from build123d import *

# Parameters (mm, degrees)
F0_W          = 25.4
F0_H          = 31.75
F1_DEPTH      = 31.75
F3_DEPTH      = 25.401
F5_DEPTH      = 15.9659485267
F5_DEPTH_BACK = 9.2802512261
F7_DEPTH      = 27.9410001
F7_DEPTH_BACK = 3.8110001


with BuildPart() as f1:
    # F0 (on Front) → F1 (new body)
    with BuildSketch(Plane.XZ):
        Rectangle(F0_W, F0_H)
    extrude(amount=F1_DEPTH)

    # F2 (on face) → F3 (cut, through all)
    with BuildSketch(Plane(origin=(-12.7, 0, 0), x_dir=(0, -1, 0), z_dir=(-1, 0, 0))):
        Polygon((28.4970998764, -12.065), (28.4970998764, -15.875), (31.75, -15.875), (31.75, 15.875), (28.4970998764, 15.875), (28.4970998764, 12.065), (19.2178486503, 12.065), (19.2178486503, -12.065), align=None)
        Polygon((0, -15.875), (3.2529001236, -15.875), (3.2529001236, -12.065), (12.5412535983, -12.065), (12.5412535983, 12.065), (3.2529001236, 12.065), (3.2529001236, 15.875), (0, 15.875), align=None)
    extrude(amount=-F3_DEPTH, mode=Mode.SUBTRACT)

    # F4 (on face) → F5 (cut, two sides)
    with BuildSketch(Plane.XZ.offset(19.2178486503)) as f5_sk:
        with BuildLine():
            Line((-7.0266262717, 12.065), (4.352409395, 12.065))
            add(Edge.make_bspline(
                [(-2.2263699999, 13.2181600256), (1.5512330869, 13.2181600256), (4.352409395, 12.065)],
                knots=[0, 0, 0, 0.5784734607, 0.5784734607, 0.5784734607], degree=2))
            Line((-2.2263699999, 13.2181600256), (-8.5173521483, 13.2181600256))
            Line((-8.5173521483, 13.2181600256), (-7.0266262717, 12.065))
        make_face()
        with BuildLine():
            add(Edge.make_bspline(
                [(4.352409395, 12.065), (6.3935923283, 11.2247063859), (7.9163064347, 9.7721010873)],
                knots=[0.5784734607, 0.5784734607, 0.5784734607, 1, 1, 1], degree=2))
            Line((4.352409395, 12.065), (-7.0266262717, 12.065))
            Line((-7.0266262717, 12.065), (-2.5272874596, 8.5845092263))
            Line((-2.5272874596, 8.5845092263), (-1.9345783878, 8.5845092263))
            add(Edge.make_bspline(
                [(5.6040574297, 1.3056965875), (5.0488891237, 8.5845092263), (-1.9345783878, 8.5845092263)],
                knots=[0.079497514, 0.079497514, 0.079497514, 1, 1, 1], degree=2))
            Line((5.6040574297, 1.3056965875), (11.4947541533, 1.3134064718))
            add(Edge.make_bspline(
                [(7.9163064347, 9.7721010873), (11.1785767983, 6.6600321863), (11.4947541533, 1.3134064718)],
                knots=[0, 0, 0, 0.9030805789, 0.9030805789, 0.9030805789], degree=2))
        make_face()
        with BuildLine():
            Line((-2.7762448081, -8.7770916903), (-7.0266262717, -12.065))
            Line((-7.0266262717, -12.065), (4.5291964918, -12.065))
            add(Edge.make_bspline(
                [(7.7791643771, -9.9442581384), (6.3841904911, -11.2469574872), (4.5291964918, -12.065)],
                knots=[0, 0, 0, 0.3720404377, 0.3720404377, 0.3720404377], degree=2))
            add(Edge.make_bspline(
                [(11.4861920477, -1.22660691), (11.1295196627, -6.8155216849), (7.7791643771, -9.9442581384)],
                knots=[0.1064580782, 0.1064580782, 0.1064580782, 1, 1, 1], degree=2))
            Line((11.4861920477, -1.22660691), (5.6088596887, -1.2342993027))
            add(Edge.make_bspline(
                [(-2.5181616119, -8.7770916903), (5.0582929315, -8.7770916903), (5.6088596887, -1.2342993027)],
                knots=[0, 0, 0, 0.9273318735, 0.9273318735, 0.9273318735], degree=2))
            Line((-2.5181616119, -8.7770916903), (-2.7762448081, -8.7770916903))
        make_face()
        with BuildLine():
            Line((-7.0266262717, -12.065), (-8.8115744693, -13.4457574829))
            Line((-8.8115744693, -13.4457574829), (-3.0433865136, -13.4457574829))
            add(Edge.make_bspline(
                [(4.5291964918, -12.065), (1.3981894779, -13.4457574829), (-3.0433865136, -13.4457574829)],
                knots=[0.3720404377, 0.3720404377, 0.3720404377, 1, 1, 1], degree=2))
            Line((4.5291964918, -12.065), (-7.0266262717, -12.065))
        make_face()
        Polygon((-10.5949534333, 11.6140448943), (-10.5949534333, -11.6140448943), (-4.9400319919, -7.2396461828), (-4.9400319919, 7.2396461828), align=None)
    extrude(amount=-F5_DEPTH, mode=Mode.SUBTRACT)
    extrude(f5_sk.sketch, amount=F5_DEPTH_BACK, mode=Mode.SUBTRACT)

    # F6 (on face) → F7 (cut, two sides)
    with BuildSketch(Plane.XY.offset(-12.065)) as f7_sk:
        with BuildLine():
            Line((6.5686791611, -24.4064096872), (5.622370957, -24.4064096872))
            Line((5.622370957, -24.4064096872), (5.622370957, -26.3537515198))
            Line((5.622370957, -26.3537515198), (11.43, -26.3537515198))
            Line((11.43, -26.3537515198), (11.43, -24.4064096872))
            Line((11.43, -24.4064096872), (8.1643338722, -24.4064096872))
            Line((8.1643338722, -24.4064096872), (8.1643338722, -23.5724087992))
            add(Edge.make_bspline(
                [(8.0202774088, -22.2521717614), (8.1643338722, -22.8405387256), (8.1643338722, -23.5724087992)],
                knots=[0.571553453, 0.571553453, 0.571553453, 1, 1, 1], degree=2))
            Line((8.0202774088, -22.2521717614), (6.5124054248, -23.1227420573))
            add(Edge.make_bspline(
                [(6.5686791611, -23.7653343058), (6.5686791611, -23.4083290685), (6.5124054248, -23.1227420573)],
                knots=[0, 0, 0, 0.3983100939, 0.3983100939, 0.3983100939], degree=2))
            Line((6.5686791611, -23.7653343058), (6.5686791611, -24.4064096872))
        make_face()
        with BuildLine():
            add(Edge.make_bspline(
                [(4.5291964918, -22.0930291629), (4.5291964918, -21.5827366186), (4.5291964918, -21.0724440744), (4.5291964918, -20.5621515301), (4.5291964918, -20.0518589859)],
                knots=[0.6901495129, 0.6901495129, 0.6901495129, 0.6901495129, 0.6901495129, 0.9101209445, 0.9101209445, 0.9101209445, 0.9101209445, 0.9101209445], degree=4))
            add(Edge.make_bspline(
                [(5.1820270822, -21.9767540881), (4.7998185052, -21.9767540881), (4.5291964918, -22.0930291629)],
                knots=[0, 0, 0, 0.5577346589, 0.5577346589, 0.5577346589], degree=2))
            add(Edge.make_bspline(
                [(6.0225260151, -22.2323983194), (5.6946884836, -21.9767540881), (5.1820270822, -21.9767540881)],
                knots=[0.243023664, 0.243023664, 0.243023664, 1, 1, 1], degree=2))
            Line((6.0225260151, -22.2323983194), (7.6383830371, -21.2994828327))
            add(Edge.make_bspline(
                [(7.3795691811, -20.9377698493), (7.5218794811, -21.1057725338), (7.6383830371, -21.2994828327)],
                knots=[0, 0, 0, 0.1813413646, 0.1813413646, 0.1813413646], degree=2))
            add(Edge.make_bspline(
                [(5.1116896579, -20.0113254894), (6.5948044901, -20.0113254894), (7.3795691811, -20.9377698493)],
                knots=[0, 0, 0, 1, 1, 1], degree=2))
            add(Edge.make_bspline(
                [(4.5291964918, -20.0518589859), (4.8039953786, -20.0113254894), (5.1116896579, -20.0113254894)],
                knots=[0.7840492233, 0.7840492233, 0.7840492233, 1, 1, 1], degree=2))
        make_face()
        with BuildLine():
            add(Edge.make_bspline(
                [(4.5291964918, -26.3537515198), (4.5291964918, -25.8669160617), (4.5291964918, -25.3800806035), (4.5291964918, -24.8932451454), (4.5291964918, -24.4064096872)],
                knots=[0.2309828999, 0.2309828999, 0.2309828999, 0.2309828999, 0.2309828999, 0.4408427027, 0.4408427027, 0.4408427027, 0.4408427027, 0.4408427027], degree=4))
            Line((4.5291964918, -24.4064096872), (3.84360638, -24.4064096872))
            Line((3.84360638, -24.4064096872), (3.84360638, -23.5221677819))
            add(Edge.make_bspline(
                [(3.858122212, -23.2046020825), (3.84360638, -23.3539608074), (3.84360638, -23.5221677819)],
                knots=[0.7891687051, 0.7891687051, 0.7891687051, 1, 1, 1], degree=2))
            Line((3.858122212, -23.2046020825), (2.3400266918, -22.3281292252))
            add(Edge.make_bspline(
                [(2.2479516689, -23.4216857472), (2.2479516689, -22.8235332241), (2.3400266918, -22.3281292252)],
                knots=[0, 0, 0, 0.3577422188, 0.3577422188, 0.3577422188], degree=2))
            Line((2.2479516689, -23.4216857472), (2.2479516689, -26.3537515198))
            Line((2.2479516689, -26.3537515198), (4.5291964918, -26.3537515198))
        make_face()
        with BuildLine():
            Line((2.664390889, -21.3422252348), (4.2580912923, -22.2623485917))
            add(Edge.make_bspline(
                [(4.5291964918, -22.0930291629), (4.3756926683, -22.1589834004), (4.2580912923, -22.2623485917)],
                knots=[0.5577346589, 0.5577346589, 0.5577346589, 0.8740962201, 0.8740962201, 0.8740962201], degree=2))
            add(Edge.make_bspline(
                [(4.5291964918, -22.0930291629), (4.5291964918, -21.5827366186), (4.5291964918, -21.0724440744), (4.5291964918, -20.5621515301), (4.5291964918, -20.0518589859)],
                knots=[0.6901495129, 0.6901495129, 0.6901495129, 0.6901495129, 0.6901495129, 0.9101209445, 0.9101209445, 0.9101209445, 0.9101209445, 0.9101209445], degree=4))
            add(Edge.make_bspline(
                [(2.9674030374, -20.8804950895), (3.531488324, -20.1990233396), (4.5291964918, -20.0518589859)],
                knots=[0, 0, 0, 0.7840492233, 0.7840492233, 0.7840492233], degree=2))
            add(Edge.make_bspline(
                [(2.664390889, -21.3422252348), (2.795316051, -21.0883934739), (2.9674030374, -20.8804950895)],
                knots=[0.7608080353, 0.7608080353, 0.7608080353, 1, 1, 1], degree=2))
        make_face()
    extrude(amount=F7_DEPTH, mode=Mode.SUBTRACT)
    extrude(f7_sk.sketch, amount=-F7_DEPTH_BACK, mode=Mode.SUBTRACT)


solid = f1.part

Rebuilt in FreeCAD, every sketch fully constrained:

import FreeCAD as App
import Part
import Sketcher

V = App.Vector
Q = App.Units.Quantity


def add_polygon(sketch, points):
    """Adds a closed chain of lines whose ends are joined by coincident constraints."""
    first, n = sketch.GeometryCount, len(points)
    for a, b in zip(points, points[1:] + points[:1]):
        sketch.addGeometry(Part.LineSegment(App.Vector(*a, 0), App.Vector(*b, 0)), False)
    for i in range(n):
        sketch.addConstraint(Sketcher.Constraint("Coincident", first + i, 2, first + (i + 1) % n, 1))

doc = App.newDocument("Part")
body = doc.addObject("PartDesign::Body", "Body")

# Sketch on XZ plane
sketch1 = body.newObject("Sketcher::SketchObject", "Sketch")
sketch1.AttachmentSupport = (doc.getObject("XZ_Plane"), [""])
sketch1.MapMode = "FlatFace"
add_polygon(sketch1, [(-13, 16), (-13, -16), (13, -16), (13, 16)])  # lines 0-3
sketch1.addConstraint([
    Sketcher.Constraint("Vertical", 0),
    Sketcher.Constraint("Horizontal", 1),
    Sketcher.Constraint("Vertical", 2),
    Sketcher.Constraint("Horizontal", 3),
    Sketcher.Constraint("Symmetric", 0, 2, 2, 2, -1, 1),
    Sketcher.Constraint("DistanceX", 1, 1, 1, 2, Q("1 in")),
    Sketcher.Constraint("DistanceY", 0, 2, 0, 1, Q("1.25 in")),
])
pad1 = body.newObject("PartDesign::Pad", "Pad")
pad1.Profile = sketch1
pad1.Length = Q("1.25 in")

# Sketch on YZ plane
sketch2 = body.newObject("Sketcher::SketchObject", "Sketch001")
sketch2.AttachmentSupport = (doc.getObject("YZ_Plane"), [""])
sketch2.MapMode = "FlatFace"
sketch2.AttachmentOffset = App.Placement(V(0, 0, -0.5 * 25.4), App.Rotation())
add_polygon(sketch2, [(-28.5, -12.1), (-28.5, -15.9), (-31.8, -15.9), (-31.8, 15.9), (-28.5, 15.9), (-28.5, 12.1), (-19.2, 12.1), (-19.2, -12.1)])  # lines 0-7
add_polygon(sketch2, [(0, -15.9), (-3.3, -15.9), (-3.3, -12.1), (-12.5, -12.1), (-12.5, 12.1), (-3.3, 12.1), (-3.3, 15.9), (0, 15.9)])  # lines 8-15
sketch2.addConstraint([
    Sketcher.Constraint("Vertical", 0),
    Sketcher.Constraint("Horizontal", 1),
    Sketcher.Constraint("Vertical", 2),
    Sketcher.Constraint("Horizontal", 3),
    Sketcher.Constraint("Vertical", 4),
    Sketcher.Constraint("Horizontal", 5),
    Sketcher.Constraint("Vertical", 6),
    Sketcher.Constraint("Horizontal", 7),
    Sketcher.Constraint("Horizontal", 8),
    Sketcher.Constraint("Vertical", 9),
    Sketcher.Constraint("Horizontal", 10),
    Sketcher.Constraint("Vertical", 11),
    Sketcher.Constraint("Horizontal", 12),
    Sketcher.Constraint("Vertical", 13),
    Sketcher.Constraint("Horizontal", 14),
    Sketcher.Constraint("Vertical", 15),
    Sketcher.Constraint("Symmetric", 14, 2, 15, 2, -1, 1),
    Sketcher.Constraint("Symmetric", 0, 2, 3, 2, -1),
    Sketcher.Constraint("Symmetric", 9, 2, 12, 2, -1),
    Sketcher.Constraint("Horizontal", 1, 2, 8, 2),
    Sketcher.Constraint("Horizontal", 7, 2, 9, 2),
    Sketcher.Constraint("Horizontal", 5, 2, 11, 2),
    Sketcher.Constraint("Equal", 3, 8),
    Sketcher.Constraint("DistanceY", 0, 2, 0, 1, Q("0.15 in")),
    Sketcher.Constraint("DistanceY", 2, 1, 2, 2, Q("1.25 in")),
    Sketcher.Constraint("DistanceX", 1, 2, -1, 1, Q("1.25 in")),
    Sketcher.Constraint("DistanceX", 1, 2, 1, 1, 3.2529),
    Sketcher.Constraint("DistanceX", 5, 1, 5, 2, 9.279251),
    Sketcher.Constraint("DistanceX", 10, 2, 10, 1, 9.288353),
])
pocket1 = body.newObject("PartDesign::Pocket", "Pocket")
pocket1.Profile = sketch2
pocket1.Type = "ThroughAll"
pocket1.Reversed = True

# Sketch on XZ plane
sketch3 = body.newObject("Sketcher::SketchObject", "Sketch002")
sketch3.AttachmentSupport = (doc.getObject("XZ_Plane"), [""])
sketch3.MapMode = "FlatFace"
sketch3.AttachmentOffset = App.Placement(V(0, 0, 19.217849), App.Rotation())
sketch3.addGeometry(Part.BSplineCurve([V(-2.22637, 13.21816, 0), V(1.551233, 13.21816, 0), V(4.352409, 12.065, 0)], [3, 3], [0, 0.578473461], False, 2, [1, 1, 1], False), False)  # 0
sketch3.addGeometry(Part.LineSegment(V(-2.22637, 13.21816, 0), V(-8.517352, 13.21816, 0)), False)  # 1
sketch3.addGeometry(Part.LineSegment(V(-8.517352, 13.21816, 0), V(-7.026626, 12.065, 0)), False)  # 2
sketch3.addGeometry(Part.LineSegment(V(-7.026626, 12.065, 0), V(-2.527287, 8.584509, 0)), False)  # 3
sketch3.addGeometry(Part.LineSegment(V(-2.527287, 8.584509, 0), V(-1.934578, 8.584509, 0)), False)  # 4
sketch3.addGeometry(Part.BSplineCurve([V(5.604057, 1.305697, 0), V(5.048889, 8.584509, 0), V(-1.934578, 8.584509, 0)], [3, 3], [0.079497514, 1], False, 2, [1, 1, 1], False), False)  # 5
sketch3.addGeometry(Part.LineSegment(V(5.604057, 1.305697, 0), V(11.494754, 1.313406, 0)), False)  # 6
sketch3.addGeometry(Part.BSplineCurve([V(7.916306, 9.772101, 0), V(11.178577, 6.660032, 0), V(11.494754, 1.313406, 0)], [3, 3], [0, 0.903080579], False, 2, [1, 1, 1], False), False)  # 7
sketch3.addGeometry(Part.BSplineCurve([V(4.352409, 12.065, 0), V(6.393592, 11.224706, 0), V(7.916306, 9.772101, 0)], [3, 3], [0.578473461, 1], False, 2, [1, 1, 1], False), False)  # 8
sketch3.addGeometry(Part.LineSegment(V(-2.776245, -8.777092, 0), V(-7.026626, -12.065, 0)), False)  # 9
sketch3.addGeometry(Part.LineSegment(V(-7.026626, -12.065, 0), V(-8.811574, -13.445757, 0)), False)  # 10
sketch3.addGeometry(Part.LineSegment(V(-8.811574, -13.445757, 0), V(-3.043387, -13.445757, 0)), False)  # 11
sketch3.addGeometry(Part.BSplineCurve([V(4.529196, -12.065, 0), V(1.398189, -13.445757, 0), V(-3.043387, -13.445757, 0)], [3, 3], [0.372040438, 1], False, 2, [1, 1, 1], False), False)  # 12
sketch3.addGeometry(Part.BSplineCurve([V(7.779164, -9.944258, 0), V(6.38419, -11.246957, 0), V(4.529196, -12.065, 0)], [3, 3], [0, 0.372040438], False, 2, [1, 1, 1], False), False)  # 13
sketch3.addGeometry(Part.BSplineCurve([V(11.486192, -1.226607, 0), V(11.12952, -6.815522, 0), V(7.779164, -9.944258, 0)], [3, 3], [0.106458078, 1], False, 2, [1, 1, 1], False), False)  # 14
sketch3.addGeometry(Part.LineSegment(V(11.486192, -1.226607, 0), V(5.60886, -1.234299, 0)), False)  # 15
sketch3.addGeometry(Part.BSplineCurve([V(-2.518162, -8.777092, 0), V(5.058293, -8.777092, 0), V(5.60886, -1.234299, 0)], [3, 3], [0, 0.927331874], False, 2, [1, 1, 1], False), False)  # 16
sketch3.addGeometry(Part.LineSegment(V(-2.518162, -8.777092, 0), V(-2.776245, -8.777092, 0)), False)  # 17
add_polygon(sketch3, [(-10.594953, 11.614045), (-10.594953, -11.614045), (-4.940032, -7.239646), (-4.940032, 7.239646)])  # lines 18-21
sketch3.addConstraint([
    Sketcher.Constraint("Block", 0),
    Sketcher.Constraint("Block", 5),
    Sketcher.Constraint("Block", 7),
    Sketcher.Constraint("Block", 8),
    Sketcher.Constraint("Block", 12),
    Sketcher.Constraint("Block", 13),
    Sketcher.Constraint("Block", 14),
    Sketcher.Constraint("Block", 16),
    Sketcher.Constraint("Coincident", 0, 1, 1, 1),
    Sketcher.Constraint("Coincident", 1, 2, 2, 1),
    Sketcher.Constraint("Coincident", 2, 2, 3, 1),
    Sketcher.Constraint("Coincident", 3, 2, 4, 1),
    Sketcher.Constraint("Coincident", 4, 2, 5, 2),
    Sketcher.Constraint("Coincident", 5, 1, 6, 1),
    Sketcher.Constraint("Coincident", 6, 2, 7, 2),
    Sketcher.Constraint("Coincident", 9, 2, 10, 1),
    Sketcher.Constraint("Coincident", 10, 2, 11, 1),
    Sketcher.Constraint("Coincident", 11, 2, 12, 2),
    Sketcher.Constraint("Coincident", 14, 1, 15, 1),
    Sketcher.Constraint("Coincident", 15, 2, 16, 2),
    Sketcher.Constraint("Coincident", 16, 1, 17, 1),
    Sketcher.Constraint("Coincident", 17, 2, 9, 1),
    Sketcher.Constraint("Horizontal", 1),
    Sketcher.Constraint("Horizontal", 4),
    Sketcher.Constraint("Horizontal", 11),
    Sketcher.Constraint("Horizontal", 17),
    Sketcher.Constraint("Vertical", 18),
    Sketcher.Constraint("Vertical", 20),
    Sketcher.Constraint("Symmetric", 2, 2, 9, 2, -1),
    Sketcher.Constraint("Parallel", 2, 3),
    Sketcher.Constraint("Parallel", 9, 10),
    Sketcher.Constraint("Parallel", 10, 19),
    Sketcher.Constraint("Parallel", 3, 21),
    Sketcher.Constraint("Equal", 19, 21),
    Sketcher.Constraint("DistanceY", 9, 2, 2, 2, Q("0.95 in")),
    Sketcher.Constraint("DistanceX", 4, 1, 4, 2, 0.592709),
    Sketcher.Constraint("DistanceY", 18, 2, 18, 1, 23.22809),
    Sketcher.Constraint("DistanceY", 18, 2, 19, 2, 4.374399),
    Sketcher.Constraint("DistanceX", 21, 2, 1, 2, 2.077601),
    Sketcher.Constraint("Distance", 19, 7.149371),
    Sketcher.Constraint("DistanceY", 11, 2, 19, 2, 6.206111),
])
pocket2 = body.newObject("PartDesign::Pocket", "Pocket001")
pocket2.Profile = sketch3
pocket2.Type = "ThroughAll"
pocket2.Midplane = True

# Sketch on XY plane
sketch4 = body.newObject("Sketcher::SketchObject", "Sketch003")
sketch4.AttachmentSupport = (doc.getObject("XY_Plane"), [""])
sketch4.MapMode = "FlatFace"
sketch4.AttachmentOffset = App.Placement(V(0, 0, -0.475 * 25.4), App.Rotation())
sketch4.addGeometry([
    Part.LineSegment(V(6.568679, -24.40641, 0), V(5.622371, -24.40641, 0)),  # 0
    Part.LineSegment(V(5.622371, -24.40641, 0), V(5.622371, -26.353752, 0)),  # 1
    Part.LineSegment(V(5.622371, -26.353752, 0), V(11.43, -26.353752, 0)),  # 2
    Part.LineSegment(V(11.43, -26.353752, 0), V(11.43, -24.40641, 0)),  # 3
    Part.LineSegment(V(11.43, -24.40641, 0), V(8.164334, -24.40641, 0)),  # 4
    Part.LineSegment(V(8.164334, -24.40641, 0), V(8.164334, -23.572409, 0)),  # 5
    Part.BSplineCurve([V(8.020277, -22.252172, 0), V(8.164334, -22.840539, 0), V(8.164334, -23.572409, 0)], [3, 3], [0.571553453, 1], False, 2, [1, 1, 1], False),  # 6
    Part.LineSegment(V(8.020277, -22.252172, 0), V(6.512405, -23.122742, 0)),  # 7
    Part.BSplineCurve([V(6.568679, -23.765334, 0), V(6.568679, -23.408329, 0), V(6.512405, -23.122742, 0)], [3, 3], [0, 0.398310094], False, 2, [1, 1, 1], False),  # 8
    Part.LineSegment(V(6.568679, -23.765334, 0), V(6.568679, -24.40641, 0)),  # 9
    Part.BSplineCurve([V(4.529196, -20.051859, 0), V(4.803995, -20.011325, 0), V(6.594804, -20.011325, 0), V(7.379569, -20.93777, 0)], [3, 1, 3], [0.784049223, 1, 2.04090268], False, 2, [1, 1, 1, 1], False),  # 10
    Part.BSplineCurve([V(2.967403, -20.880495, 0), V(3.531488, -20.199023, 0), V(4.529196, -20.051859, 0)], [3, 3], [0, 0.784049223], False, 2, [1, 1, 1], False),  # 11
    Part.BSplineCurve([V(2.664391, -21.342225, 0), V(2.795316, -21.088393, 0), V(2.967403, -20.880495, 0)], [3, 3], [0.760808035, 1], False, 2, [1, 1, 1], False),  # 12
    Part.LineSegment(V(2.664391, -21.342225, 0), V(4.258091, -22.262349, 0)),  # 13
    Part.BSplineCurve([V(4.529196, -22.093029, 0), V(4.375693, -22.158983, 0), V(4.258091, -22.262349, 0)], [3, 3], [0.557734659, 0.87409622], False, 2, [1, 1, 1], False),  # 14
    Part.BSplineCurve([V(6.022526, -22.232398, 0), V(5.694688, -21.976754, 0), V(4.799819, -21.976754, 0), V(4.529196, -22.093029, 0)], [3, 1, 3], [0.243023664, 1, 1.564354655], False, 2, [1, 1, 1, 1], False),  # 15
    Part.LineSegment(V(6.022526, -22.232398, 0), V(7.638383, -21.299483, 0)),  # 16
    Part.BSplineCurve([V(7.379569, -20.93777, 0), V(7.521879, -21.105773, 0), V(7.638383, -21.299483, 0)], [3, 3], [0, 0.181341365], False, 2, [1, 1, 1], False),  # 17
    Part.BSplineCurve([V(4.529196, -26.353752, 0), V(4.529196, -25.866916, 0), V(4.529196, -25.380081, 0), V(4.529196, -24.893245, 0), V(4.529196, -24.40641, 0)], [5, 5], [0.2309829, 0.440842703], False, 4, [1, 1, 1, 1, 1], False),  # 18
    Part.LineSegment(V(4.529196, -24.40641, 0), V(3.843606, -24.40641, 0)),  # 19
    Part.LineSegment(V(3.843606, -24.40641, 0), V(3.843606, -23.522168, 0)),  # 20
    Part.BSplineCurve([V(3.858122, -23.204602, 0), V(3.843606, -23.353961, 0), V(3.843606, -23.522168, 0)], [3, 3], [0.789168705, 1], False, 2, [1, 1, 1], False),  # 21
    Part.LineSegment(V(3.858122, -23.204602, 0), V(2.340027, -22.328129, 0)),  # 22
    Part.BSplineCurve([V(2.247952, -23.421686, 0), V(2.247952, -22.823533, 0), V(2.340027, -22.328129, 0)], [3, 3], [0, 0.357742219], False, 2, [1, 1, 1], False),  # 23
    Part.LineSegment(V(2.247952, -23.421686, 0), V(2.247952, -26.353752, 0)),  # 24
    Part.LineSegment(V(2.247952, -26.353752, 0), V(4.529196, -26.353752, 0)),  # 25
], False)
sketch4.addConstraint([
    Sketcher.Constraint("Block", 6),
    Sketcher.Constraint("Block", 8),
    Sketcher.Constraint("Block", 10),
    Sketcher.Constraint("Block", 11),
    Sketcher.Constraint("Block", 12),
    Sketcher.Constraint("Block", 14),
    Sketcher.Constraint("Block", 15),
    Sketcher.Constraint("Block", 17),
    Sketcher.Constraint("Block", 18),
    Sketcher.Constraint("Block", 21),
    Sketcher.Constraint("Block", 23),
    Sketcher.Constraint("Coincident", 0, 2, 1, 1),
    Sketcher.Constraint("Coincident", 1, 2, 2, 1),
    Sketcher.Constraint("Coincident", 2, 2, 3, 1),
    Sketcher.Constraint("Coincident", 3, 2, 4, 1),
    Sketcher.Constraint("Coincident", 4, 2, 5, 1),
    Sketcher.Constraint("Coincident", 5, 2, 6, 2),
    Sketcher.Constraint("Coincident", 6, 1, 7, 1),
    Sketcher.Constraint("Coincident", 7, 2, 8, 2),
    Sketcher.Constraint("Coincident", 8, 1, 9, 1),
    Sketcher.Constraint("Coincident", 9, 2, 0, 1),
    Sketcher.Constraint("Coincident", 12, 1, 13, 1),
    Sketcher.Constraint("Coincident", 13, 2, 14, 2),
    Sketcher.Constraint("Coincident", 15, 1, 16, 1),
    Sketcher.Constraint("Coincident", 16, 2, 17, 2),
    Sketcher.Constraint("Coincident", 18, 2, 19, 1),
    Sketcher.Constraint("Coincident", 19, 2, 20, 1),
    Sketcher.Constraint("Coincident", 20, 2, 21, 2),
    Sketcher.Constraint("Coincident", 21, 1, 22, 1),
    Sketcher.Constraint("Coincident", 22, 2, 23, 2),
    Sketcher.Constraint("Coincident", 23, 1, 24, 1),
    Sketcher.Constraint("Coincident", 24, 2, 25, 1),
    Sketcher.Constraint("Coincident", 25, 2, 18, 1),
    Sketcher.Constraint("Horizontal", 0),
    Sketcher.Constraint("Vertical", 1),
    Sketcher.Constraint("Horizontal", 2),
    Sketcher.Constraint("Vertical", 3),
    Sketcher.Constraint("Horizontal", 4),
    Sketcher.Constraint("Vertical", 5),
    Sketcher.Constraint("Vertical", 9),
    Sketcher.Constraint("Horizontal", 19),
    Sketcher.Constraint("Vertical", 20),
    Sketcher.Constraint("Vertical", 24),
    Sketcher.Constraint("Horizontal", 25),
    Sketcher.Constraint("Horizontal", 0, 2, 3, 2),
    Sketcher.Constraint("Horizontal", 9, 2, 19, 2),
    Sketcher.Constraint("Horizontal", 2, 2, 24, 2),
    Sketcher.Constraint("DistanceX", -1, 1, 2, 2, Q("0.45 in")),
    Sketcher.Constraint("DistanceX", 0, 2, 0, 1, 0.946308),
])
pocket3 = body.newObject("PartDesign::Pocket", "Pocket002")
pocket3.Profile = sketch4
pocket3.Type = "ThroughAll"
pocket3.Midplane = True

doc.recompute()
